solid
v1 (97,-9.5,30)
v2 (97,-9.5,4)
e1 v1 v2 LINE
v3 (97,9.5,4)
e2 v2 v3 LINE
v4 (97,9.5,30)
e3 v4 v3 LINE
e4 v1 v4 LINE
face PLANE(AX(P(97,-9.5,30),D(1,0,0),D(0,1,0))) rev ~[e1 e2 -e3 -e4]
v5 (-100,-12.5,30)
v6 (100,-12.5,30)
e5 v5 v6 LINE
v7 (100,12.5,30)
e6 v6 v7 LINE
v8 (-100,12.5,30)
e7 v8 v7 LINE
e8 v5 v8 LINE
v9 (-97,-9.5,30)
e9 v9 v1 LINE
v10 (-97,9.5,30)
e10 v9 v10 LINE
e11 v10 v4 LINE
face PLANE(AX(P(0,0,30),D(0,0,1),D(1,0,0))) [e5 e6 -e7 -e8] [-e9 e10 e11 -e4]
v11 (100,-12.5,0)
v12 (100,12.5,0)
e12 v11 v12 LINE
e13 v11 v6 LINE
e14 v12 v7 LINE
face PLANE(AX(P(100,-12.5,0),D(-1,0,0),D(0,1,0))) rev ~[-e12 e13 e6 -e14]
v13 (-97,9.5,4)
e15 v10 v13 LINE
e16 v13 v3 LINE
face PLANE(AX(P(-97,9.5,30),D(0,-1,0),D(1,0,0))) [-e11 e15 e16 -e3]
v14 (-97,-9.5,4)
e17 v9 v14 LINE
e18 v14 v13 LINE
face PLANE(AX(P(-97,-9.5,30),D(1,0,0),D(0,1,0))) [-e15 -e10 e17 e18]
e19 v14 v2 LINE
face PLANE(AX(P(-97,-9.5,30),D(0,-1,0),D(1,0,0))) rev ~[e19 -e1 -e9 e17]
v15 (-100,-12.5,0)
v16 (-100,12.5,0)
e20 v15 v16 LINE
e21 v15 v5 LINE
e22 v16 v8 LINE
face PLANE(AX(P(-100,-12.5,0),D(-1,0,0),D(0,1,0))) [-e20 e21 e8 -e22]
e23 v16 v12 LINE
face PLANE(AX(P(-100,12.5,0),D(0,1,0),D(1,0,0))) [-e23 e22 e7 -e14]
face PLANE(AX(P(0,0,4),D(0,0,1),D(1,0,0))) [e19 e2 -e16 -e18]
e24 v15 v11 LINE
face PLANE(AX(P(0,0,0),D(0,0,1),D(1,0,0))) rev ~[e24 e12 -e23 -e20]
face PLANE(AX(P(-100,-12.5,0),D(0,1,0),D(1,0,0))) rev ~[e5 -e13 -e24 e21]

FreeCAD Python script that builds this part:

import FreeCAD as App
import Part
import Sketcher
from FreeCAD import Vector
Q = App.Units.Quantity


def add_polygon(sketch, points):
    """Adds a closed chain of lines whose ends are joined by coincident constraints."""
    first, n = sketch.GeometryCount, len(points)
    for a, b in zip(points, points[1:] + points[:1]):
        sketch.addGeometry(Part.LineSegment(App.Vector(*a, 0), App.Vector(*b, 0)), False)
    for i in range(n):
        sketch.addConstraint(Sketcher.Constraint("Coincident", first + i, 2, first + (i + 1) % n, 1))

doc = App.newDocument("Part")
params = doc.addObject("Spreadsheet::Sheet", "Params")
for row, (alias, value) in enumerate([
    ("sketch1_width", "200 mm"),
    ("sketch1_height", "25 mm"),
    ("pad1_length", "30 mm"),
    ("sketch2_width", "194 mm"),
    ("sketch2_height", "19 mm"),
    ("pocket1_length", "26 mm"),
], start=1):
    params.set(f"A{row}", alias)
    params.set(f"B{row}", "=" + value)
    params.setAlias(f"B{row}", alias)

body = doc.addObject("PartDesign::Body", "Body")

sketch1 = body.newObject("Sketcher::SketchObject", "Sketch")
sketch1.AttachmentSupport = (doc.getObject("XY_Plane"), [""])
sketch1.MapMode = "FlatFace"
add_polygon(sketch1, [(-100, 12), (-100, -12), (100, -12), (100, 12)])
sketch1.addConstraint(Sketcher.Constraint("Vertical", 0))
sketch1.addConstraint(Sketcher.Constraint("Horizontal", 1))
sketch1.addConstraint(Sketcher.Constraint("Vertical", 2))
sketch1.addConstraint(Sketcher.Constraint("Horizontal", 3))
sketch1.addConstraint(Sketcher.Constraint("Symmetric", 0, 2, 2, 2, -1, 1))
sketch1.addConstraint(Sketcher.Constraint("DistanceX", 1, 1, 1, 2, Q("200 mm")))
sketch1.addConstraint(Sketcher.Constraint("DistanceY", 0, 2, 0, 1, Q("25 mm")))
sketch1.setExpression("Constraints[9]", "Params.sketch1_width")
sketch1.setExpression("Constraints[10]", "Params.sketch1_height")
pad1 = body.newObject("PartDesign::Pad", "Pad")
pad1.Profile = sketch1
pad1.setExpression("Length", "Params.pad1_length")

sketch2 = body.newObject("Sketcher::SketchObject", "Sketch001")
sketch2.AttachmentSupport = (doc.getObject("XY_Plane"), [""])
sketch2.MapMode = "FlatFace"
sketch2.AttachmentOffset = App.Placement(Vector(0, 0, 30), App.Rotation())
add_polygon(sketch2, [(-97, 10), (-97, -10), (97, -10), (97, 10)])
sketch2.addConstraint(Sketcher.Constraint("Vertical", 0))
sketch2.addConstraint(Sketcher.Constraint("Horizontal", 1))
sketch2.addConstraint(Sketcher.Constraint("Vertical", 2))
sketch2.addConstraint(Sketcher.Constraint("Horizontal", 3))
sketch2.addConstraint(Sketcher.Constraint("Symmetric", 0, 2, 2, 2, -1, 1))
sketch2.addConstraint(Sketcher.Constraint("DistanceX", 1, 1, 1, 2, Q("194 mm")))
sketch2.addConstraint(Sketcher.Constraint("DistanceY", 0, 2, 0, 1, Q("19 mm")))
sketch2.setExpression("Constraints[9]", "Params.sketch2_width")
sketch2.setExpression("Constraints[10]", "Params.sketch2_height")
pocket1 = body.newObject("PartDesign::Pocket", "Pocket")
pocket1.Profile = sketch2
pocket1.setExpression("Length", "Params.pocket1_length")

doc.recompute()
